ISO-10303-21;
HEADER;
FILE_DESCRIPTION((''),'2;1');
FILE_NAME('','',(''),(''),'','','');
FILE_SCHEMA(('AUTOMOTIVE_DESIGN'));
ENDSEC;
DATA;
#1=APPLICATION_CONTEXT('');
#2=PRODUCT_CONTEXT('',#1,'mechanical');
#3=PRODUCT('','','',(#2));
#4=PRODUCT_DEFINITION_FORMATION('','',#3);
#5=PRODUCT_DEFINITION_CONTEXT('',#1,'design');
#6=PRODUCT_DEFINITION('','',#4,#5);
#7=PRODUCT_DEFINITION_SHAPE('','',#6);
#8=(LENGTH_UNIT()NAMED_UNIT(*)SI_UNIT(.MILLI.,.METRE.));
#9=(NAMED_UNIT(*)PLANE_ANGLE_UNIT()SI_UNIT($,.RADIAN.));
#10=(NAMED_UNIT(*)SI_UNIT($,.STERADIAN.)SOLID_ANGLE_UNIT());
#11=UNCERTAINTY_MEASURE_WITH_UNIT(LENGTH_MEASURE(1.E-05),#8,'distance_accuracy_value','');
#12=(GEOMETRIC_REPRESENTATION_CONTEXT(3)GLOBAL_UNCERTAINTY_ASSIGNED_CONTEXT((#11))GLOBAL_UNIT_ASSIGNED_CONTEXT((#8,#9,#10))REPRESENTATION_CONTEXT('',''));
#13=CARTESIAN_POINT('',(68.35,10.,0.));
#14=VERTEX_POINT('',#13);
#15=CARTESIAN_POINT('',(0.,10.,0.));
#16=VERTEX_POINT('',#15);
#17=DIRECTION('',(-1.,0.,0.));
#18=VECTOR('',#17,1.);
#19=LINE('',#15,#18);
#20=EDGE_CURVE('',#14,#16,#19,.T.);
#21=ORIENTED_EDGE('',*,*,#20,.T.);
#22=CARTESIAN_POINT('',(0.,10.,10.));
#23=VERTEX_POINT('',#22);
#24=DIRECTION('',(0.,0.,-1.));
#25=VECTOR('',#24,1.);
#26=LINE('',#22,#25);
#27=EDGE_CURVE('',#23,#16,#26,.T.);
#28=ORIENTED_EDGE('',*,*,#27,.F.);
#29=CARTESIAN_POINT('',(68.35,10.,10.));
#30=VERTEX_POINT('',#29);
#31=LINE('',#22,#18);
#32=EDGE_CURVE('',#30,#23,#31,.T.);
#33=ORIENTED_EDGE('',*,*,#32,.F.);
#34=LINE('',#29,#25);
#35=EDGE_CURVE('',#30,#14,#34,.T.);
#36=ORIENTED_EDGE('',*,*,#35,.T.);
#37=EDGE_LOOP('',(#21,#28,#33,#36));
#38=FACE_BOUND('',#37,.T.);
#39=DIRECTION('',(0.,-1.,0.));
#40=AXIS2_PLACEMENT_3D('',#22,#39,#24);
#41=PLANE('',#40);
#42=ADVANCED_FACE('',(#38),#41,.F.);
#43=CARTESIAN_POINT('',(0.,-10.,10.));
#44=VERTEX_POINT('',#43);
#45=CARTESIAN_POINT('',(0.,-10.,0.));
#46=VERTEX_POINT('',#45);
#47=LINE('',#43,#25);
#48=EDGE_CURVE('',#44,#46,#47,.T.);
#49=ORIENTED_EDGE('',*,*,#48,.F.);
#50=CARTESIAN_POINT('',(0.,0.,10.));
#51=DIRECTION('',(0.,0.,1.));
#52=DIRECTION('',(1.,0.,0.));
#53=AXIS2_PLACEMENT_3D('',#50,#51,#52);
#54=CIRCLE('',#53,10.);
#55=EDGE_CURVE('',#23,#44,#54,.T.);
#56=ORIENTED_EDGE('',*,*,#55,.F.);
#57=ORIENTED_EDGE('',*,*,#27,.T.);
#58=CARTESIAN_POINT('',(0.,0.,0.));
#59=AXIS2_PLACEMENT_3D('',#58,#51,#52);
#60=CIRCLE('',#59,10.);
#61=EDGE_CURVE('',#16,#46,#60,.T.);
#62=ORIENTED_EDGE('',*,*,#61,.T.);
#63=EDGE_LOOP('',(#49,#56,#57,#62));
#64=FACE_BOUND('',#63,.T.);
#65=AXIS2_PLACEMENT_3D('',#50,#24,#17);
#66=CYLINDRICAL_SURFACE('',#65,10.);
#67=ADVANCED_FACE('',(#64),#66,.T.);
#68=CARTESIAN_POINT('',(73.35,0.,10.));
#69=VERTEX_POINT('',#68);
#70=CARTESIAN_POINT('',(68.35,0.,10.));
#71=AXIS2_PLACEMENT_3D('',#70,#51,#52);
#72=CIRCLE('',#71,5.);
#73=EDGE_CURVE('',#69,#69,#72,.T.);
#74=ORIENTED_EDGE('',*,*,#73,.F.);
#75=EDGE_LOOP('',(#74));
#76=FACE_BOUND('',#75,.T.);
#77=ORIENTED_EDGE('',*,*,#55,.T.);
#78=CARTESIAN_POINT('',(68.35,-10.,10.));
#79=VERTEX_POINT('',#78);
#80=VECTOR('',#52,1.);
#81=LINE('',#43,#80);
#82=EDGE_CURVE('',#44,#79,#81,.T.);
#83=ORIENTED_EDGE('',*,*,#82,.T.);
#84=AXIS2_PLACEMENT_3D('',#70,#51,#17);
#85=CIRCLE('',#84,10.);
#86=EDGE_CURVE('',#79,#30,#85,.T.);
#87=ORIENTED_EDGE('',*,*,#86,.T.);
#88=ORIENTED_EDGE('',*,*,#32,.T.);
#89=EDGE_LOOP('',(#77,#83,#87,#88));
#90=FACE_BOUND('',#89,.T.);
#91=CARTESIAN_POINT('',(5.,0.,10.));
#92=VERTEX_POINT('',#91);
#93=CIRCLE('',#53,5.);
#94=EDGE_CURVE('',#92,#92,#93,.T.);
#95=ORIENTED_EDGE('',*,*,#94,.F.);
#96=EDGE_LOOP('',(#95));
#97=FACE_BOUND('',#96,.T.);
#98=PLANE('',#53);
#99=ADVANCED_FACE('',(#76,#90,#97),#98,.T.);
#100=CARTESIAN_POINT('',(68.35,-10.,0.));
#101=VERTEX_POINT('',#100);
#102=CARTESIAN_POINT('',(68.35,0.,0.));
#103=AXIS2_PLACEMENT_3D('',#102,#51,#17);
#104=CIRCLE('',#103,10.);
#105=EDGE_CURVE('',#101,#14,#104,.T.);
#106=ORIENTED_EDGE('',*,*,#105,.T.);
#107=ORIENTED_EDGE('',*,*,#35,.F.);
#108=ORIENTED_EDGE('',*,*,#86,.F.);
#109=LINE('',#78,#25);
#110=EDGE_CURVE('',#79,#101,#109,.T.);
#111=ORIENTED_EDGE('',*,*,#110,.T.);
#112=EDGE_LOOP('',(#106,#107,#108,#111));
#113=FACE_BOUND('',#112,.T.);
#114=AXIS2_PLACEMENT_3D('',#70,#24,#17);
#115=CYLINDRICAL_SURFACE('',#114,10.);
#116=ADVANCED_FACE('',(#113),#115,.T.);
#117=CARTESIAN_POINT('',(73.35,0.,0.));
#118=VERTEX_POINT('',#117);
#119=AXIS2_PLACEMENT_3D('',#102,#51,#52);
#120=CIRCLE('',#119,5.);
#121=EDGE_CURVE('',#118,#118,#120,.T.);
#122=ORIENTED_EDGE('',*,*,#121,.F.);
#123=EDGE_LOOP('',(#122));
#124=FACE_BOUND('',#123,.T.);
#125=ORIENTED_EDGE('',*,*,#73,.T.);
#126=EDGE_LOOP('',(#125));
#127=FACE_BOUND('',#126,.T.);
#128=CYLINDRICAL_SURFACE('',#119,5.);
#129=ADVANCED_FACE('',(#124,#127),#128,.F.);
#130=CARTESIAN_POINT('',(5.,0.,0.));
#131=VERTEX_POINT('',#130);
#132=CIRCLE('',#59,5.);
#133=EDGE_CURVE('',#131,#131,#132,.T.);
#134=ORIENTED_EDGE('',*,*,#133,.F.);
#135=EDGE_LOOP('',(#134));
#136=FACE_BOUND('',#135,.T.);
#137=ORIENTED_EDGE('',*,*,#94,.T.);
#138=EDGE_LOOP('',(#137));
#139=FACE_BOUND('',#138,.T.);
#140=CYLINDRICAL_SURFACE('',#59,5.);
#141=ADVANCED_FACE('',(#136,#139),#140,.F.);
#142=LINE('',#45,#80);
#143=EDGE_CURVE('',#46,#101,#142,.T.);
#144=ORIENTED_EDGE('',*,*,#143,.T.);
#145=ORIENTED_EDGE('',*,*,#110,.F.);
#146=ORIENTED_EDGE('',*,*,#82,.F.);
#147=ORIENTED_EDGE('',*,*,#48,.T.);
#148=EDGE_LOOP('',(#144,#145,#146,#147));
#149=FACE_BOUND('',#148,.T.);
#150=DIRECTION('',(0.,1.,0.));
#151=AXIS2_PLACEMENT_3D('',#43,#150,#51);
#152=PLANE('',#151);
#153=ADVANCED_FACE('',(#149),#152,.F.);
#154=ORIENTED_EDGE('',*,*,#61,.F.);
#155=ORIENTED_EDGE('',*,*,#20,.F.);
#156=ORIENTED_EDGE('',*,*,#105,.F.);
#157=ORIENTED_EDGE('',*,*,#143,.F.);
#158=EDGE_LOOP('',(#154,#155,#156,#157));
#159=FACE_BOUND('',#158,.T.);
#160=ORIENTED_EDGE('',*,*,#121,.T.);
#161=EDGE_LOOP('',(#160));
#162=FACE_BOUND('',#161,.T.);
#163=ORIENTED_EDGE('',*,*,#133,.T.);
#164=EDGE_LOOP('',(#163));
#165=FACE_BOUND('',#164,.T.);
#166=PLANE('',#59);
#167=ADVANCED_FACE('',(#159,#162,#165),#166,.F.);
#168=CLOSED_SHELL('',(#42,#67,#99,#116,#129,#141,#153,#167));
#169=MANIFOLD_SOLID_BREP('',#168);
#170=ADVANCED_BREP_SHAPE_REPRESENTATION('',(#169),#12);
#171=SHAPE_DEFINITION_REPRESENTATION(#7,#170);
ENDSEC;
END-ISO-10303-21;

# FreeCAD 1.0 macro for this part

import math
import FreeCAD as App
import Part
import Sketcher

doc = App.newDocument("Part")
params = doc.addObject("Spreadsheet::Sheet", "Params")
for row, (alias, value) in enumerate([
    ("sketch1_radius", "10 mm"),
    ("sketch1_width", "68.35 mm"),
    ("pad1_length", "10 mm"),
    ("sketch2_diameter", "10 mm"),
    ("pocket1_length", "10 mm"),
    ("sketch3_diameter", "10 mm"),
    ("pocket2_length", "10 mm"),
], start=1):
    params.set(f"A{row}", alias)
    params.set(f"B{row}", "=" + value)
    params.setAlias(f"B{row}", alias)

body = doc.addObject("PartDesign::Body", "Body")

# Sketch on XY plane
sketch1 = body.newObject("Sketcher::SketchObject", "Sketch")
sketch1.AttachmentSupport = (doc.getObject("XY_Plane"), [""])
sketch1.MapMode = "FlatFace"
sketch1.addGeometry([
    Part.LineSegment(App.Vector(0, -10, 0), App.Vector(68.35, -10, 0)),
    Part.ArcOfCircle(Part.Circle(App.Vector(68.35, 0, 0), App.Vector(0, 0, 1), 10), math.radians(-90), math.radians(90)),
    Part.LineSegment(App.Vector(68.35, 10, 0), App.Vector(0, 10, 0)),
    Part.ArcOfCircle(Part.Circle(App.Vector(0, 0, 0), App.Vector(0, 0, 1), 10), math.radians(90), math.radians(270)),
], False)
sketch1.addConstraint([
    Sketcher.Constraint("Tangent", 0, 2, 1, 1),
    Sketcher.Constraint("Tangent", 1, 2, 2, 1),
    Sketcher.Constraint("Tangent", 2, 2, 3, 1),
    Sketcher.Constraint("Tangent", 3, 2, 0, 1),
    Sketcher.Constraint("Horizontal", 0),
    Sketcher.Constraint("Horizontal", 2),
    Sketcher.Constraint("Coincident", 3, 3, -1, 1),
    Sketcher.Constraint("Radius", 1, 10.0),
    Sketcher.Constraint("DistanceX", 0, 1, 0, 2, 68.35),
])
sketch1.setExpression("Constraints[7]", "Params.sketch1_radius")
sketch1.setExpression("Constraints[8]", "Params.sketch1_width")
pad1 = body.newObject("PartDesign::Pad", "Pad")
pad1.Profile = sketch1
pad1.setExpression("Length", "Params.pad1_length")

# Sketch on XY plane
sketch2 = body.newObject("Sketcher::SketchObject", "Sketch001")
sketch2.AttachmentSupport = (doc.getObject("XY_Plane"), [""])
sketch2.MapMode = "FlatFace"
sketch2.AttachmentOffset = App.Placement(App.Vector(0, 0, 10), App.Rotation())
sketch2.addGeometry(Part.Circle(App.Vector(0, 0, 0), App.Vector(0, 0, 1), 5), False)
sketch2.addConstraint([
    Sketcher.Constraint("Coincident", 0, 3, -1, 1),
    Sketcher.Constraint("Diameter", 0, 10.0),
])
sketch2.setExpression("Constraints[1]", "Params.sketch2_diameter")
pocket1 = body.newObject("PartDesign::Pocket", "Pocket")
pocket1.Profile = sketch2
pocket1.setExpression("Length", "Params.pocket1_length")

# Sketch on XY plane
sketch3 = body.newObject("Sketcher::SketchObject", "Sketch002")
sketch3.AttachmentSupport = (doc.getObject("XY_Plane"), [""])
sketch3.MapMode = "FlatFace"
sketch3.AttachmentOffset = App.Placement(App.Vector(0, 0, 10), App.Rotation())
sketch3.addGeometry(Part.Circle(App.Vector(68.35, 0, 0), App.Vector(0, 0, 1), 5), False)
sketch3.addConstraint([
    Sketcher.Constraint("PointOnObject", 0, 3, -1),
    Sketcher.Constraint("Diameter", 0, 10.0),
    Sketcher.Constraint("DistanceX", -1, 1, 0, 3, 68.35),
])
sketch3.setExpression("Constraints[1]", "Params.sketch3_diameter")
pocket2 = body.newObject("PartDesign::Pocket", "Pocket001")
pocket2.Profile = sketch3
pocket2.setExpression("Length", "Params.pocket2_length")

doc.recompute()
